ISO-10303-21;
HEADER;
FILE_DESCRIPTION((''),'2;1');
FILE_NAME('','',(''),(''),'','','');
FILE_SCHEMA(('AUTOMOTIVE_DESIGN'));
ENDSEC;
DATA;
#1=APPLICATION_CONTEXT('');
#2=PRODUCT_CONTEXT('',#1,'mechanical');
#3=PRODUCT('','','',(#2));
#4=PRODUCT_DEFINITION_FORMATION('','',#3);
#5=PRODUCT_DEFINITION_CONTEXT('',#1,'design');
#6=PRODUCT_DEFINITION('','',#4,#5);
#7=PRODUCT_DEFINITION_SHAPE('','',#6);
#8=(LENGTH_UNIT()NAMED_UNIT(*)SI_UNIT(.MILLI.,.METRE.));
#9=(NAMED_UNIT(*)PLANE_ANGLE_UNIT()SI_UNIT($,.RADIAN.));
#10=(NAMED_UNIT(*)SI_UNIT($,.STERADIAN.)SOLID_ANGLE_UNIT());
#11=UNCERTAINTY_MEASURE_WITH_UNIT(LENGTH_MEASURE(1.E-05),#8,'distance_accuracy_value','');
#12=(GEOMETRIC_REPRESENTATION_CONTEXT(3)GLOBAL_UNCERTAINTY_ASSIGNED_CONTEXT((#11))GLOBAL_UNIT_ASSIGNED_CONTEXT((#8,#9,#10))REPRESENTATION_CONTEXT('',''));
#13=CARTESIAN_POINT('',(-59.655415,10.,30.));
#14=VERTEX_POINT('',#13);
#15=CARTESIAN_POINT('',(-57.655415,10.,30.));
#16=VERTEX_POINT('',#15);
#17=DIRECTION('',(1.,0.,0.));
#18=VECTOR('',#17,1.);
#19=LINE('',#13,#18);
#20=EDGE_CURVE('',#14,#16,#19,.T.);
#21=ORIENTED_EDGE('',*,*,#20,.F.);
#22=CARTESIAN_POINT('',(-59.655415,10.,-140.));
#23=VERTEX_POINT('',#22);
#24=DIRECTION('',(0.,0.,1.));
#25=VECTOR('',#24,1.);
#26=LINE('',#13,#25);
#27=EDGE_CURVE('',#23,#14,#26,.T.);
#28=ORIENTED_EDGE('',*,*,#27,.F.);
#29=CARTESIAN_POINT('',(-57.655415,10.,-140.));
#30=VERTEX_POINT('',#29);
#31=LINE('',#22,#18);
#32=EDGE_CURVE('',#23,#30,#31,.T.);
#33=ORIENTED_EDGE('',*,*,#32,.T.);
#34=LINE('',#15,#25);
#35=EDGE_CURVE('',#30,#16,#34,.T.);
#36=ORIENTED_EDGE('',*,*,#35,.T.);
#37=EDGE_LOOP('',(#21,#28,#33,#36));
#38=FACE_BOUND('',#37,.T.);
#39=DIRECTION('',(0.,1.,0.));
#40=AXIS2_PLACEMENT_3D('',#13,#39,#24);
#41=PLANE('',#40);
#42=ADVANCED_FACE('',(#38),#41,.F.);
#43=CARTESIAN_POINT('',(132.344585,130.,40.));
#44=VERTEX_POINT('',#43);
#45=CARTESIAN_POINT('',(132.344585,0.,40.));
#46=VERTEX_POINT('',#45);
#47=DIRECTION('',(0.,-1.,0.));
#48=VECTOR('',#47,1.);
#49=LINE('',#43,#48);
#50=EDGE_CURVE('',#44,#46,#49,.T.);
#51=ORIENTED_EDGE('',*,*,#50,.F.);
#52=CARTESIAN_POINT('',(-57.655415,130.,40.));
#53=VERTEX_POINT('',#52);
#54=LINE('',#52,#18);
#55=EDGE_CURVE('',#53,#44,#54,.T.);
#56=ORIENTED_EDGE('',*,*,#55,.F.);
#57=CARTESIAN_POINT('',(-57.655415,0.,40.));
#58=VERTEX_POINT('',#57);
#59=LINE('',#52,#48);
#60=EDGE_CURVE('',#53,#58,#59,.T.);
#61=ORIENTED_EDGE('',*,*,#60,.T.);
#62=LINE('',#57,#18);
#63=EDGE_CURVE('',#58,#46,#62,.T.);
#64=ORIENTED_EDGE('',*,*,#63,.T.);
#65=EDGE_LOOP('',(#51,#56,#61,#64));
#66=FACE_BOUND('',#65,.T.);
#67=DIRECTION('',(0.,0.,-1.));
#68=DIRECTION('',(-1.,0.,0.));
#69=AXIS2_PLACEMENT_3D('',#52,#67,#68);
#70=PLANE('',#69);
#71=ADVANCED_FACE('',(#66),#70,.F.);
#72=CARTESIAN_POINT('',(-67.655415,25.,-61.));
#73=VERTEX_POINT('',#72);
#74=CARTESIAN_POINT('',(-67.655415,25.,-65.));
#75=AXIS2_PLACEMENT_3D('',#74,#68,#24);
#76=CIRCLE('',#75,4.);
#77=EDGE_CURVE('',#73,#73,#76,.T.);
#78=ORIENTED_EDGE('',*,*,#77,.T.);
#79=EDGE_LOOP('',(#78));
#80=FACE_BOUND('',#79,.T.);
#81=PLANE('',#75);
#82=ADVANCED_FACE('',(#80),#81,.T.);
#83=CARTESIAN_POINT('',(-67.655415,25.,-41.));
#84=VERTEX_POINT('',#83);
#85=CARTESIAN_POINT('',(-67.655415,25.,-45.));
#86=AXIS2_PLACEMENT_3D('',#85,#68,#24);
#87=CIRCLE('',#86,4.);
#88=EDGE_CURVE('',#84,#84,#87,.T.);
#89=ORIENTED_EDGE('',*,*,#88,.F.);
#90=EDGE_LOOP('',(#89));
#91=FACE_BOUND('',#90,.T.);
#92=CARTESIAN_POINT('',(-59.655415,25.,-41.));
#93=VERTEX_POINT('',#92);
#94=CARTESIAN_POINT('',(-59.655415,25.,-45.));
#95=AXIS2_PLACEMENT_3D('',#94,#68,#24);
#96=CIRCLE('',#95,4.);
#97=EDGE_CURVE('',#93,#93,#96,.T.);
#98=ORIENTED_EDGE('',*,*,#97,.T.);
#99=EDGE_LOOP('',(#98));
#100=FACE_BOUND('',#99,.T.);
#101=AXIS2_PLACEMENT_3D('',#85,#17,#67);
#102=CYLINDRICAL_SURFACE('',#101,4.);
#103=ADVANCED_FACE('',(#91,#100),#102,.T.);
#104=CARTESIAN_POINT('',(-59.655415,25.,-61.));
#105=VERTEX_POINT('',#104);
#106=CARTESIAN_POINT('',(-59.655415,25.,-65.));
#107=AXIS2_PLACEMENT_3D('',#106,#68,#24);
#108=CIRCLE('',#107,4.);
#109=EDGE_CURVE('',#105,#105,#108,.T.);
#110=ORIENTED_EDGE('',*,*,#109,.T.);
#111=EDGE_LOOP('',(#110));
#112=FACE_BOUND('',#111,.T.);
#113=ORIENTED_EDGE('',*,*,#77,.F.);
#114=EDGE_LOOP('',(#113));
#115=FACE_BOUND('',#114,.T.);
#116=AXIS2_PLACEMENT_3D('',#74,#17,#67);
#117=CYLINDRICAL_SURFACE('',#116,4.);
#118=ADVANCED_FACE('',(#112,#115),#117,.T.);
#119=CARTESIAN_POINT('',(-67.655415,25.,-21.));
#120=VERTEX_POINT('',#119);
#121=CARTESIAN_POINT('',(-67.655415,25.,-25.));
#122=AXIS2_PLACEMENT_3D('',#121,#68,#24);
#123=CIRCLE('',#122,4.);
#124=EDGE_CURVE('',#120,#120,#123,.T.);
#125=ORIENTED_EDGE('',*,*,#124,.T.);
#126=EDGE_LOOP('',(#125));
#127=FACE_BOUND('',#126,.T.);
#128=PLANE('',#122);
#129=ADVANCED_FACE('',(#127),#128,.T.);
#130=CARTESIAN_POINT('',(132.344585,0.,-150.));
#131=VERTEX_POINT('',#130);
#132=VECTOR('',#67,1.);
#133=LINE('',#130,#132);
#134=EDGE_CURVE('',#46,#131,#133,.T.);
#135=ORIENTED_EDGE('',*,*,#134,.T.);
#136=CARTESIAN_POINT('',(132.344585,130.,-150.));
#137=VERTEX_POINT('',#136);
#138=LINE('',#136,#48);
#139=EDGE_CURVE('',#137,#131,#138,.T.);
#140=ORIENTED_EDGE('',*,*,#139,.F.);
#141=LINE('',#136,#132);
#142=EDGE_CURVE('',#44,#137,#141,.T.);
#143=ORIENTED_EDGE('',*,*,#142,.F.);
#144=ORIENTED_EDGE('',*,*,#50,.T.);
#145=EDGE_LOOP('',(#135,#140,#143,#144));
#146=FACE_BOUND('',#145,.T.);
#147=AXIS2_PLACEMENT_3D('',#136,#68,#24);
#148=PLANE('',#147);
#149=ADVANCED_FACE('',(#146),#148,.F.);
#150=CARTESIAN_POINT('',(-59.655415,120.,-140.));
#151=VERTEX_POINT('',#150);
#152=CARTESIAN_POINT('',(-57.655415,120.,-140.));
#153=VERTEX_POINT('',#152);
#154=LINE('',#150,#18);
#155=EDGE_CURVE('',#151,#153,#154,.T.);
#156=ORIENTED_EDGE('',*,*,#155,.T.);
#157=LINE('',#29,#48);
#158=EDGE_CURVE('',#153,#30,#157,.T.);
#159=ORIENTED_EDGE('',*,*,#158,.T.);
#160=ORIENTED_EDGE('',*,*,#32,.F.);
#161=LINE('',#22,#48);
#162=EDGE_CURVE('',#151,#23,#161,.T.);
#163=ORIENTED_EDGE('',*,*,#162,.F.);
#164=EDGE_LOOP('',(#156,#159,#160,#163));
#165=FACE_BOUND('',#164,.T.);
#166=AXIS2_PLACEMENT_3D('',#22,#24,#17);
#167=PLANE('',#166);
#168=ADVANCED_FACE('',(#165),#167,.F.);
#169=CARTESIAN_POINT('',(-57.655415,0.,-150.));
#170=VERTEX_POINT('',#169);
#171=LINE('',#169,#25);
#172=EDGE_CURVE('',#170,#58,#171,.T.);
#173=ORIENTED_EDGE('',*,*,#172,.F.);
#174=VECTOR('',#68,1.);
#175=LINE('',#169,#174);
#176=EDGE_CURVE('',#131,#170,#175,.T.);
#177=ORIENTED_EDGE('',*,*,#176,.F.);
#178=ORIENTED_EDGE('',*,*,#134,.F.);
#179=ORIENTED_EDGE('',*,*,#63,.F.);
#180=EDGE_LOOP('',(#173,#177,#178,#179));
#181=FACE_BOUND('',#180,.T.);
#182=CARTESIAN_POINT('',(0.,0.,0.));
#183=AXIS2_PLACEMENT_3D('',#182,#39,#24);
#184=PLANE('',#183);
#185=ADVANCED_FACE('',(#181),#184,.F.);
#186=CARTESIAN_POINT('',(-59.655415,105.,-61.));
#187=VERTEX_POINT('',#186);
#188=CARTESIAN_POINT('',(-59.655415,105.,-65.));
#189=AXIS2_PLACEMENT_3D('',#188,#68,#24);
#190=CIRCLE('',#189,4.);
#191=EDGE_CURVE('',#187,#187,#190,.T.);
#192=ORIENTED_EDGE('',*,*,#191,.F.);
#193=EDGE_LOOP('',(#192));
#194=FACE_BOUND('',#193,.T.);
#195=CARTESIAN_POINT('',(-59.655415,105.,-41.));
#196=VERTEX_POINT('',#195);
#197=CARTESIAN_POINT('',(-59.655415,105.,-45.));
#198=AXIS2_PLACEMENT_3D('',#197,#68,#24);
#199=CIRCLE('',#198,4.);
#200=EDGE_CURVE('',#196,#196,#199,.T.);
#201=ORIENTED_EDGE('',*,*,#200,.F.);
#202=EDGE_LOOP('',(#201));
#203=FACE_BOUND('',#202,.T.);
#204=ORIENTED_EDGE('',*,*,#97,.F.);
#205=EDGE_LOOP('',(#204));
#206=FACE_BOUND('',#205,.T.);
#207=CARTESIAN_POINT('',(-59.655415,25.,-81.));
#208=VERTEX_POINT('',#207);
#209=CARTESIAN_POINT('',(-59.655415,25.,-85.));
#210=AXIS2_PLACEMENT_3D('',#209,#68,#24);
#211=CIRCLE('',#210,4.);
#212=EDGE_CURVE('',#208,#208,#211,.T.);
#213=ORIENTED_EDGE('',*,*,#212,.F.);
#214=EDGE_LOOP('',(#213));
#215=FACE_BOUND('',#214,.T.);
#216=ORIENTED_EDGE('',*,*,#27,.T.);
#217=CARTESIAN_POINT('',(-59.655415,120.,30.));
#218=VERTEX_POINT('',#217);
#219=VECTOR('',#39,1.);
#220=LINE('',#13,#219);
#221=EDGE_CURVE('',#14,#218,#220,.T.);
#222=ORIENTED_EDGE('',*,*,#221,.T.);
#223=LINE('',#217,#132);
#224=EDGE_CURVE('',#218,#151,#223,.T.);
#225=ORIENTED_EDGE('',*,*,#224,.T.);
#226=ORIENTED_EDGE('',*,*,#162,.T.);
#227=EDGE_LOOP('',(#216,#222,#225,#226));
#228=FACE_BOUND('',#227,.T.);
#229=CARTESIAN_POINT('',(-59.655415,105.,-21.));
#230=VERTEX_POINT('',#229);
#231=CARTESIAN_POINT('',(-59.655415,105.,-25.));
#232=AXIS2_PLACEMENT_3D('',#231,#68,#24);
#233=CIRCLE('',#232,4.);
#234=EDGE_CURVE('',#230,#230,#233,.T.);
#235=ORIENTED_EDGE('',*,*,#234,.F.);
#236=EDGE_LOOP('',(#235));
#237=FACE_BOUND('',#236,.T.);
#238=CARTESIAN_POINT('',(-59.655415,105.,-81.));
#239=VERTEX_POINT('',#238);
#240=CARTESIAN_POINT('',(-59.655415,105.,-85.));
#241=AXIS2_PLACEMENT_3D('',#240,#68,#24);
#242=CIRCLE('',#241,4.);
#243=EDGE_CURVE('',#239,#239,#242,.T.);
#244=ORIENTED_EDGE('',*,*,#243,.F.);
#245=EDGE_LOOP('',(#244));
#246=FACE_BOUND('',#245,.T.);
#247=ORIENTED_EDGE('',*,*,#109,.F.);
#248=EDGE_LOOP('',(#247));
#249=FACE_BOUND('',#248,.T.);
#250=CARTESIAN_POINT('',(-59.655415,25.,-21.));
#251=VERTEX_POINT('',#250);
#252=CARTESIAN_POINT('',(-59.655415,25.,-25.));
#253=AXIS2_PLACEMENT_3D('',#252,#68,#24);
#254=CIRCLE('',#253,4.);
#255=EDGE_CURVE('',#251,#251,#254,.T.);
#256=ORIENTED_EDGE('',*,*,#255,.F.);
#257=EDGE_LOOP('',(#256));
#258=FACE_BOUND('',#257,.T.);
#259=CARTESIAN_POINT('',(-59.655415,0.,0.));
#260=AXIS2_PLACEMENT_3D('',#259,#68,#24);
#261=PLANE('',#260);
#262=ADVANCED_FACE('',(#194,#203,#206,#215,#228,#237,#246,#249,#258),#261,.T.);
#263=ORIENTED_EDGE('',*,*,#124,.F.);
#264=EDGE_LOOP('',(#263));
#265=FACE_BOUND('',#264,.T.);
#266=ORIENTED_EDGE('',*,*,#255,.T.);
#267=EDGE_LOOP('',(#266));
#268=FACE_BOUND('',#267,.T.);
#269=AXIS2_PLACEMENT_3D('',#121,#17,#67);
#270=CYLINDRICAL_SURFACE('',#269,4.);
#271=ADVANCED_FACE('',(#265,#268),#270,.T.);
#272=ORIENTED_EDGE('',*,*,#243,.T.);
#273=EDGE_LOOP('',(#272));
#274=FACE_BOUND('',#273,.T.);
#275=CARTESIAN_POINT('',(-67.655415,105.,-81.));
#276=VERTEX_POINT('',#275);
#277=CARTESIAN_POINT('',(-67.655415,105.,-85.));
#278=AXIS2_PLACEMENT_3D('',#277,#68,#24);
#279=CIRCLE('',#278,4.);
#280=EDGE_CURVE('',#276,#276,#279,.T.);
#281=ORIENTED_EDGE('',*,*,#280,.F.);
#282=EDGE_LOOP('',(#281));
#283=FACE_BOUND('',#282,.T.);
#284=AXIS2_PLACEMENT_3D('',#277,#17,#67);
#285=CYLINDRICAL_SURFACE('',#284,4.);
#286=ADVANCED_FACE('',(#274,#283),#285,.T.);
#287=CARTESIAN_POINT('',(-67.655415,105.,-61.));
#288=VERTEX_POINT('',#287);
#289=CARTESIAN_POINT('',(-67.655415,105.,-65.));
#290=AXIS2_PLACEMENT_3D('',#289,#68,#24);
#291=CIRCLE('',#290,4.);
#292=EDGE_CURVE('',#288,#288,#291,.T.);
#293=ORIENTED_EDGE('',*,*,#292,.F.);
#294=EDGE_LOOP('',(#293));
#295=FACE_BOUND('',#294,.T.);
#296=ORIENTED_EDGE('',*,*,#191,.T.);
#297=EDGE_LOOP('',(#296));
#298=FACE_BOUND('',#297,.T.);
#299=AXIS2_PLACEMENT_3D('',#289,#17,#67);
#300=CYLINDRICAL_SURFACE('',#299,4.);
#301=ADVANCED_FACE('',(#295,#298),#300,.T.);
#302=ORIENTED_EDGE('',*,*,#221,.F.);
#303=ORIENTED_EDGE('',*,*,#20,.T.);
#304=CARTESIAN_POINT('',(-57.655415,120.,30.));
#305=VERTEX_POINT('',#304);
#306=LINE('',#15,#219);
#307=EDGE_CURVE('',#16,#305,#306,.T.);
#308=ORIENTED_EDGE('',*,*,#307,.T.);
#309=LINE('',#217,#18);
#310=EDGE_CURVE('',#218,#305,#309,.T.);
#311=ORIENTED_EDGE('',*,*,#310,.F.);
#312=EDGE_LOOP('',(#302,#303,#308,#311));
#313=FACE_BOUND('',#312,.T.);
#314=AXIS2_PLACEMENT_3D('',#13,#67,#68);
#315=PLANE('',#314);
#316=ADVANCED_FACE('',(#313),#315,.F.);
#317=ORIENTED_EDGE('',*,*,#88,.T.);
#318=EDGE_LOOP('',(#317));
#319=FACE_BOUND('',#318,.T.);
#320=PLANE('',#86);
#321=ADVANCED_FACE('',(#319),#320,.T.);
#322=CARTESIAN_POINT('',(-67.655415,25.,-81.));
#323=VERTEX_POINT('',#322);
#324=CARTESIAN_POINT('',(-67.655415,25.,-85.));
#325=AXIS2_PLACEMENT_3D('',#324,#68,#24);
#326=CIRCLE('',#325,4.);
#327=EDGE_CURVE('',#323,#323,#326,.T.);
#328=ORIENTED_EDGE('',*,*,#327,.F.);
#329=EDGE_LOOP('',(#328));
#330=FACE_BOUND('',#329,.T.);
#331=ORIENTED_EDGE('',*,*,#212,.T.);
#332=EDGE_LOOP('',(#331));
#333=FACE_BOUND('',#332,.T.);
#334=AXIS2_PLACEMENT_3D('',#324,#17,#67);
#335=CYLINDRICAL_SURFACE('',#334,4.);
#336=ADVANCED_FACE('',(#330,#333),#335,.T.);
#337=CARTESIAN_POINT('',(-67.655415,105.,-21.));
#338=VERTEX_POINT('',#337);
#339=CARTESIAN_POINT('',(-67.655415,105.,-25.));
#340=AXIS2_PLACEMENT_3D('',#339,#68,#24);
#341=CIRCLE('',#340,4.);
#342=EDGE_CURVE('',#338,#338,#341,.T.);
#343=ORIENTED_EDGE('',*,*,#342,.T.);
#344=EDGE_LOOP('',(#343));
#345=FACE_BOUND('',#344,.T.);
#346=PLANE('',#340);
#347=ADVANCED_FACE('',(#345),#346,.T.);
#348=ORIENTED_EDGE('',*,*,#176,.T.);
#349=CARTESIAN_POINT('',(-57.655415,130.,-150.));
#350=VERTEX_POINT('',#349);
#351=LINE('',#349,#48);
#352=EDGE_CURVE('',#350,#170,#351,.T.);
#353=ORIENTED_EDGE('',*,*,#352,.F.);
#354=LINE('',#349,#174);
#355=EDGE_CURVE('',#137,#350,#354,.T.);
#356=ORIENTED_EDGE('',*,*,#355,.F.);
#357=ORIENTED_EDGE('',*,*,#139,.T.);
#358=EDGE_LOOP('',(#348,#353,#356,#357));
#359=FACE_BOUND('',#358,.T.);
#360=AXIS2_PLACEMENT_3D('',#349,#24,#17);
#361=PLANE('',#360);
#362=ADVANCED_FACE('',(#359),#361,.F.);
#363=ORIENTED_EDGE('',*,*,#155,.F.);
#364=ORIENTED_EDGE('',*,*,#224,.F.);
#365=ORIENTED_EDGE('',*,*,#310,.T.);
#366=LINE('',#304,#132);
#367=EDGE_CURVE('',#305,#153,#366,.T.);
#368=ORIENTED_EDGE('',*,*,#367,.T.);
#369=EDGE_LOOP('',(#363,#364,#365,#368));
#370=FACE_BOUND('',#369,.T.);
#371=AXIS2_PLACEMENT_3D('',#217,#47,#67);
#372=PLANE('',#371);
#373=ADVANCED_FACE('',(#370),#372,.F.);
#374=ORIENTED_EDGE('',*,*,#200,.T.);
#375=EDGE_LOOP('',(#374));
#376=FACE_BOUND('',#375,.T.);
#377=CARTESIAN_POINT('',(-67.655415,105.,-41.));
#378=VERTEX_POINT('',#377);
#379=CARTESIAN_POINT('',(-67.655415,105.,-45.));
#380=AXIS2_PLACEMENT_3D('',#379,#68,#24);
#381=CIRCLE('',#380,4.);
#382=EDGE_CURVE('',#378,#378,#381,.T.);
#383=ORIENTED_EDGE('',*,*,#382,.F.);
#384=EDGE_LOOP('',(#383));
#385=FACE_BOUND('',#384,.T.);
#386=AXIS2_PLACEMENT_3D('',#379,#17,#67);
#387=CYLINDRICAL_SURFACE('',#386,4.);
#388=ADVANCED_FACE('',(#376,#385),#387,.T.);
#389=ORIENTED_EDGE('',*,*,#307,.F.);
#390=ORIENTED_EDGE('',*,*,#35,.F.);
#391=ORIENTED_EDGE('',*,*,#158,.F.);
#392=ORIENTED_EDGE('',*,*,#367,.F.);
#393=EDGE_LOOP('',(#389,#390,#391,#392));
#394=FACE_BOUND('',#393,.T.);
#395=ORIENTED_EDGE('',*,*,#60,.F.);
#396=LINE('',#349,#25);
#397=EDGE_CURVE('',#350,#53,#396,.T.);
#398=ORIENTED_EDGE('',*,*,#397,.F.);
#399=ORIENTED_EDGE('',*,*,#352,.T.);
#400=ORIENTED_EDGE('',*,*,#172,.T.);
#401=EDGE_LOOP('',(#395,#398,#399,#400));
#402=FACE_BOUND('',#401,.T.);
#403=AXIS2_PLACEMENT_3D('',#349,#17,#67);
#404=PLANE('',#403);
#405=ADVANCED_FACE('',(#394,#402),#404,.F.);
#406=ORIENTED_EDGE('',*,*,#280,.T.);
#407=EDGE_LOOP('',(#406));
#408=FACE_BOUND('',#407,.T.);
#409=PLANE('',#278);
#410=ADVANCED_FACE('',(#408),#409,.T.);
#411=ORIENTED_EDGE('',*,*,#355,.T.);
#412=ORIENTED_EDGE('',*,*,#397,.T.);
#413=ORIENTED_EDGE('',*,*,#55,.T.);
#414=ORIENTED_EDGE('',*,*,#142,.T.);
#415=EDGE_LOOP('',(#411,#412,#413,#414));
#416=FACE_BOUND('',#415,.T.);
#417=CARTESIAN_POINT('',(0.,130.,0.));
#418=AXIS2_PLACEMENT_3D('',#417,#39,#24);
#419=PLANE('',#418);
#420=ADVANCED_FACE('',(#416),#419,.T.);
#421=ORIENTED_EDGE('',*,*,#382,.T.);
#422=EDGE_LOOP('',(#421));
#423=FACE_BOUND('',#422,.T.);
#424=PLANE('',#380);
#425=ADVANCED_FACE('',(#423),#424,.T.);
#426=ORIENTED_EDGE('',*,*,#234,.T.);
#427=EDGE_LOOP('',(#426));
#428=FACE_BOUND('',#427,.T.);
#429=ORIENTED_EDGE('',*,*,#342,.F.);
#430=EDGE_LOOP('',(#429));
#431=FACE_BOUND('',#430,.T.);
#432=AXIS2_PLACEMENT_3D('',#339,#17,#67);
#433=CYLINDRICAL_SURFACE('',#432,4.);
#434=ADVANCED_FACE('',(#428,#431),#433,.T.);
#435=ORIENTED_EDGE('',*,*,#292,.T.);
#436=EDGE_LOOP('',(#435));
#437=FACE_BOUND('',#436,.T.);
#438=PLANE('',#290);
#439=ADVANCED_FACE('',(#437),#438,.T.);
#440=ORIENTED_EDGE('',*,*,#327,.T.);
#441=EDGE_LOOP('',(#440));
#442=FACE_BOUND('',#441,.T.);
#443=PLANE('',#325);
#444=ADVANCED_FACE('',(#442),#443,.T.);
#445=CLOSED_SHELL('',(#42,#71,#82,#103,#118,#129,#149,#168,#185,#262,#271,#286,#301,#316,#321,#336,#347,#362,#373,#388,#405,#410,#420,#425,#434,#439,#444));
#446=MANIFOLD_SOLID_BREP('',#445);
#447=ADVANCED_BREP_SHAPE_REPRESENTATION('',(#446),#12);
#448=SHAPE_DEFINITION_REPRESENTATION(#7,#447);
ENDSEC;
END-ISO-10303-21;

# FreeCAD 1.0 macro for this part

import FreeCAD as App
import Part
import Sketcher
from FreeCAD import Vector


def add_polygon(sketch, points):
    """Adds a closed chain of lines whose ends are joined by coincident constraints."""
    first, n = sketch.GeometryCount, len(points)
    for a, b in zip(points, points[1:] + points[:1]):
        sketch.addGeometry(Part.LineSegment(App.Vector(*a, 0), App.Vector(*b, 0)), False)
    for i in range(n):
        sketch.addConstraint(Sketcher.Constraint("Coincident", first + i, 2, first + (i + 1) % n, 1))

doc = App.newDocument("Part")
body = doc.addObject("PartDesign::Body", "Body")

sketch1 = doc.addObject("Sketcher::SketchObject", "Sketch")
body.addObject(sketch1)
sketch1.AttachmentSupport = (doc.XZ_Plane, [""])
sketch1.MapMode = "FlatFace"
add_polygon(sketch1, [(-58, -150), (-58, 40), (132, 40), (132, -150)])
sketch1.addConstraint(Sketcher.Constraint("Vertical", 0))
sketch1.addConstraint(Sketcher.Constraint("Horizontal", 1))
sketch1.addConstraint(Sketcher.Constraint("Vertical", 2))
sketch1.addConstraint(Sketcher.Constraint("Horizontal", 3))
sketch1.addConstraint(Sketcher.Constraint("Equal", 3, 0))
sketch1.addConstraint(Sketcher.Constraint("DistanceX", 1, 1, 1, 2, 190.0))
sketch1.addConstraint(Sketcher.Constraint("DistanceY", -1, 1, 0, 2, 40.0))
sketch1.addConstraint(Sketcher.Constraint("DistanceX", 0, 2, -1, 1, 57.655415))
pad1 = doc.addObject("PartDesign::Pad", "Pad")
body.addObject(pad1)
pad1.Profile = sketch1
pad1.Length = 130
pad1.Reversed = True

sketch2 = doc.addObject("Sketcher::SketchObject", "Sketch001")
body.addObject(sketch2)
sketch2.AttachmentSupport = (doc.YZ_Plane, [""])
sketch2.MapMode = "FlatFace"
sketch2.AttachmentOffset = App.Placement(Vector(0, 0, -57.655415), App.Rotation())
add_polygon(sketch2, [(120, -140), (10, -140), (10, 30), (120, 30)])
sketch2.addConstraint(Sketcher.Constraint("Horizontal", 0))
sketch2.addConstraint(Sketcher.Constraint("Vertical", 1))
sketch2.addConstraint(Sketcher.Constraint("Horizontal", 2))
sketch2.addConstraint(Sketcher.Constraint("Vertical", 3))
sketch2.addConstraint(Sketcher.Constraint("DistanceX", 0, 2, 0, 1, 110.0))
sketch2.addConstraint(Sketcher.Constraint("DistanceY", 1, 1, 1, 2, 170.0))
sketch2.addConstraint(Sketcher.Constraint("DistanceX", -1, 1, 0, 2, 10.0))
sketch2.addConstraint(Sketcher.Constraint("DistanceY", 0, 2, -1, 1, 140.0))
pad2 = doc.addObject("PartDesign::Pad", "Pad001")
body.addObject(pad2)
pad2.Profile = sketch2
pad2.Length = 2
pad2.Reversed = True

sketch3 = doc.addObject("Sketcher::SketchObject", "Sketch002")
body.addObject(sketch3)
sketch3.AttachmentSupport = (doc.YZ_Plane, [""])
sketch3.MapMode = "FlatFace"
sketch3.AttachmentOffset = App.Placement(Vector(0, 0, -59.655415), App.Rotation())
sketch3.addGeometry(Part.Circle(Vector(25, -25, 0), Vector(0, 0, 1), 4), False)
sketch3.addGeometry(Part.Circle(Vector(25, -45, 0), Vector(0, 0, 1), 4), False)
sketch3.addGeometry(Part.Circle(Vector(105, -25, 0), Vector(0, 0, 1), 4), False)
sketch3.addGeometry(Part.Circle(Vector(25, -65, 0), Vector(0, 0, 1), 4), False)
sketch3.addGeometry(Part.Circle(Vector(25, -85, 0), Vector(0, 0, 1), 4), False)
sketch3.addGeometry(Part.Circle(Vector(105, -45, 0), Vector(0, 0, 1), 4), False)
sketch3.addGeometry(Part.Circle(Vector(105, -65, 0), Vector(0, 0, 1), 4), False)
sketch3.addGeometry(Part.Circle(Vector(105, -85, 0), Vector(0, 0, 1), 4), False)
sketch3.addConstraint(Sketcher.Constraint("Equal", 0, 1))
sketch3.addConstraint(Sketcher.Constraint("Equal", 1, 2))
sketch3.addConstraint(Sketcher.Constraint("Equal", 2, 3))
sketch3.addConstraint(Sketcher.Constraint("Equal", 3, 4))
sketch3.addConstraint(Sketcher.Constraint("Equal", 4, 5))
sketch3.addConstraint(Sketcher.Constraint("Equal", 5, 6))
sketch3.addConstraint(Sketcher.Constraint("Equal", 6, 7))
sketch3.addConstraint(Sketcher.Constraint("Horizontal", 0, 3, 2, 3))
sketch3.addConstraint(Sketcher.Constraint("Horizontal", 1, 3, 5, 3))
sketch3.addConstraint(Sketcher.Constraint("Horizontal", 3, 3, 6, 3))
sketch3.addConstraint(Sketcher.Constraint("Horizontal", 4, 3, 7, 3))
sketch3.addConstraint(Sketcher.Constraint("Vertical", 0, 3, 1, 3))
sketch3.addConstraint(Sketcher.Constraint("Vertical", 1, 3, 3, 3))
sketch3.addConstraint(Sketcher.Constraint("Vertical", 3, 3, 4, 3))
sketch3.addConstraint(Sketcher.Constraint("Vertical", 2, 3, 5, 3))
sketch3.addConstraint(Sketcher.Constraint("Vertical", 5, 3, 6, 3))
sketch3.addConstraint(Sketcher.Constraint("Vertical", 6, 3, 7, 3))
sketch3.addConstraint(Sketcher.Constraint("Diameter", 0, 8.0))
sketch3.addConstraint(Sketcher.Constraint("DistanceX", -1, 1, 0, 3, 25.0))
sketch3.addConstraint(Sketcher.Constraint("DistanceY", 0, 3, -1, 1, 25.0))
sketch3.addConstraint(Sketcher.Constraint("DistanceY", 1, 3, -1, 1, 45.0))
sketch3.addConstraint(Sketcher.Constraint("DistanceX", -1, 1, 2, 3, 105.0))
sketch3.addConstraint(Sketcher.Constraint("DistanceY", 3, 3, -1, 1, 65.0))
sketch3.addConstraint(Sketcher.Constraint("DistanceY", 4, 3, -1, 1, 85.0))
pad3 = doc.addObject("PartDesign::Pad", "Pad002")
body.addObject(pad3)
pad3.Profile = sketch3
pad3.Length = 8
pad3.Reversed = True

doc.recompute()
